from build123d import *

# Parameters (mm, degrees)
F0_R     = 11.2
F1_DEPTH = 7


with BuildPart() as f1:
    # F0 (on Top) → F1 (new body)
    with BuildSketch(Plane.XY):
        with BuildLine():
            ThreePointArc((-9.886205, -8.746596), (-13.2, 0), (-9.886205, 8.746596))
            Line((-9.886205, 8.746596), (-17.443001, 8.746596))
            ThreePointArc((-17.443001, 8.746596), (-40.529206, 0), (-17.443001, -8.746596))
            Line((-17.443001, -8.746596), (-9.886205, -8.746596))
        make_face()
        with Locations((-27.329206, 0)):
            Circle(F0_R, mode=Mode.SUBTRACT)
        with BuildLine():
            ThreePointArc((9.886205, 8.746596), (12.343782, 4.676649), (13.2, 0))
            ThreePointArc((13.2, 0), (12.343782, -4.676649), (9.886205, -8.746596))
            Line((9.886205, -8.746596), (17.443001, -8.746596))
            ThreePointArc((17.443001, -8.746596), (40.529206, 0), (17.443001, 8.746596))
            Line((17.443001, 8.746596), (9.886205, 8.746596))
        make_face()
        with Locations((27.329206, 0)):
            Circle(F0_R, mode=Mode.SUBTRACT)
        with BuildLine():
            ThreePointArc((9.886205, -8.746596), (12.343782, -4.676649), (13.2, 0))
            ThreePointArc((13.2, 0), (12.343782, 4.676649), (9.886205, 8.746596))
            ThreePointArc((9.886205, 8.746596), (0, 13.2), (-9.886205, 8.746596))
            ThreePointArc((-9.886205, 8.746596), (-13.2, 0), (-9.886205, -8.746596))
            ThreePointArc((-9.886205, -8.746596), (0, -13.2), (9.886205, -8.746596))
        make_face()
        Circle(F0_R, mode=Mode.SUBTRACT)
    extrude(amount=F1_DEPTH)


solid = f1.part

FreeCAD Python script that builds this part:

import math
import FreeCAD as App
import Part
import Sketcher

V = App.Vector

doc = App.newDocument("Part")
body = doc.addObject("PartDesign::Body", "Body")

sketch1 = body.newObject("Sketcher::SketchObject", "Sketch")
sketch1.AttachmentSupport = (doc.getObject("XY_Plane"), [""])
sketch1.MapMode = "FlatFace"
sketch1.addGeometry([
    Part.LineSegment(V(-17, -9, 0), V(-10, -9, 0)),
    Part.ArcOfCircle(Part.Circle(V(0, 0, 0), V(0, 0, 1), 13), math.radians(-138), math.radians(-42)),
    Part.LineSegment(V(10, -9, 0), V(17, -9, 0)),
    Part.ArcOfCircle(Part.Circle(V(27, 0, 0), V(0, 0, 1), 13), math.radians(-138), math.radians(138)),
    Part.LineSegment(V(17, 9, 0), V(10, 9, 0)),
    Part.ArcOfCircle(Part.Circle(V(0, 0, 0), V(0, 0, 1), 13), math.radians(42), math.radians(138)),
    Part.LineSegment(V(-10, 9, 0), V(-17, 9, 0)),
    Part.ArcOfCircle(Part.Circle(V(-27, 0, 0), V(0, 0, 1), 13), math.radians(42), math.radians(318)),
    Part.Circle(V(-27, 0, 0), V(0, 0, 1), 11),
    Part.Circle(V(0, 0, 0), V(0, 0, 1), 11),
    Part.Circle(V(27, 0, 0), V(0, 0, 1), 11),
], False)
sketch1.addConstraint([
    Sketcher.Constraint("Coincident", 0, 2, 1, 1),
    Sketcher.Constraint("Coincident", 1, 2, 2, 1),
    Sketcher.Constraint("Coincident", 2, 2, 3, 1),
    Sketcher.Constraint("Coincident", 3, 2, 4, 1),
    Sketcher.Constraint("Coincident", 4, 2, 5, 1),
    Sketcher.Constraint("Coincident", 5, 2, 6, 1),
    Sketcher.Constraint("Coincident", 6, 2, 7, 1),
    Sketcher.Constraint("Coincident", 7, 2, 0, 1),
    Sketcher.Constraint("Horizontal", 0),
    Sketcher.Constraint("Horizontal", 2),
    Sketcher.Constraint("Horizontal", 4),
    Sketcher.Constraint("Horizontal", 6),
    Sketcher.Constraint("Coincident", 1, 3, -1, 1),
    Sketcher.Constraint("Coincident", 5, 3, -1, 1),
    Sketcher.Constraint("Coincident", 9, 3, -1, 1),
    Sketcher.Constraint("Coincident", 8, 3, 7, 3),
    Sketcher.Constraint("Coincident", 10, 3, 3, 3),
    Sketcher.Constraint("Equal", 1, 3),
    Sketcher.Constraint("Equal", 3, 5),
    Sketcher.Constraint("Equal", 5, 7),
    Sketcher.Constraint("Equal", 8, 9),
    Sketcher.Constraint("Equal", 9, 10),
    Sketcher.Constraint("Symmetric", 3, 3, 7, 3, -1, 1),
    Sketcher.Constraint("Symmetric", 3, 2, 6, 2, -2),
    Sketcher.Constraint("Horizontal", 0, 2, 1, 2),
    Sketcher.Constraint("Vertical", 2, 2, 3, 2),
    Sketcher.Constraint("Diameter", 8, 22.4),
    Sketcher.Constraint("Radius", 1, 13.199999),
    Sketcher.Constraint("DistanceX", -1, 1, 2, 2, 17.443001),
    Sketcher.Constraint("DistanceX", 0, 1, 0, 2, 7.556796),
])
pad1 = body.newObject("PartDesign::Pad", "Pad")
pad1.Profile = sketch1
pad1.Length = 7

doc.recompute()
